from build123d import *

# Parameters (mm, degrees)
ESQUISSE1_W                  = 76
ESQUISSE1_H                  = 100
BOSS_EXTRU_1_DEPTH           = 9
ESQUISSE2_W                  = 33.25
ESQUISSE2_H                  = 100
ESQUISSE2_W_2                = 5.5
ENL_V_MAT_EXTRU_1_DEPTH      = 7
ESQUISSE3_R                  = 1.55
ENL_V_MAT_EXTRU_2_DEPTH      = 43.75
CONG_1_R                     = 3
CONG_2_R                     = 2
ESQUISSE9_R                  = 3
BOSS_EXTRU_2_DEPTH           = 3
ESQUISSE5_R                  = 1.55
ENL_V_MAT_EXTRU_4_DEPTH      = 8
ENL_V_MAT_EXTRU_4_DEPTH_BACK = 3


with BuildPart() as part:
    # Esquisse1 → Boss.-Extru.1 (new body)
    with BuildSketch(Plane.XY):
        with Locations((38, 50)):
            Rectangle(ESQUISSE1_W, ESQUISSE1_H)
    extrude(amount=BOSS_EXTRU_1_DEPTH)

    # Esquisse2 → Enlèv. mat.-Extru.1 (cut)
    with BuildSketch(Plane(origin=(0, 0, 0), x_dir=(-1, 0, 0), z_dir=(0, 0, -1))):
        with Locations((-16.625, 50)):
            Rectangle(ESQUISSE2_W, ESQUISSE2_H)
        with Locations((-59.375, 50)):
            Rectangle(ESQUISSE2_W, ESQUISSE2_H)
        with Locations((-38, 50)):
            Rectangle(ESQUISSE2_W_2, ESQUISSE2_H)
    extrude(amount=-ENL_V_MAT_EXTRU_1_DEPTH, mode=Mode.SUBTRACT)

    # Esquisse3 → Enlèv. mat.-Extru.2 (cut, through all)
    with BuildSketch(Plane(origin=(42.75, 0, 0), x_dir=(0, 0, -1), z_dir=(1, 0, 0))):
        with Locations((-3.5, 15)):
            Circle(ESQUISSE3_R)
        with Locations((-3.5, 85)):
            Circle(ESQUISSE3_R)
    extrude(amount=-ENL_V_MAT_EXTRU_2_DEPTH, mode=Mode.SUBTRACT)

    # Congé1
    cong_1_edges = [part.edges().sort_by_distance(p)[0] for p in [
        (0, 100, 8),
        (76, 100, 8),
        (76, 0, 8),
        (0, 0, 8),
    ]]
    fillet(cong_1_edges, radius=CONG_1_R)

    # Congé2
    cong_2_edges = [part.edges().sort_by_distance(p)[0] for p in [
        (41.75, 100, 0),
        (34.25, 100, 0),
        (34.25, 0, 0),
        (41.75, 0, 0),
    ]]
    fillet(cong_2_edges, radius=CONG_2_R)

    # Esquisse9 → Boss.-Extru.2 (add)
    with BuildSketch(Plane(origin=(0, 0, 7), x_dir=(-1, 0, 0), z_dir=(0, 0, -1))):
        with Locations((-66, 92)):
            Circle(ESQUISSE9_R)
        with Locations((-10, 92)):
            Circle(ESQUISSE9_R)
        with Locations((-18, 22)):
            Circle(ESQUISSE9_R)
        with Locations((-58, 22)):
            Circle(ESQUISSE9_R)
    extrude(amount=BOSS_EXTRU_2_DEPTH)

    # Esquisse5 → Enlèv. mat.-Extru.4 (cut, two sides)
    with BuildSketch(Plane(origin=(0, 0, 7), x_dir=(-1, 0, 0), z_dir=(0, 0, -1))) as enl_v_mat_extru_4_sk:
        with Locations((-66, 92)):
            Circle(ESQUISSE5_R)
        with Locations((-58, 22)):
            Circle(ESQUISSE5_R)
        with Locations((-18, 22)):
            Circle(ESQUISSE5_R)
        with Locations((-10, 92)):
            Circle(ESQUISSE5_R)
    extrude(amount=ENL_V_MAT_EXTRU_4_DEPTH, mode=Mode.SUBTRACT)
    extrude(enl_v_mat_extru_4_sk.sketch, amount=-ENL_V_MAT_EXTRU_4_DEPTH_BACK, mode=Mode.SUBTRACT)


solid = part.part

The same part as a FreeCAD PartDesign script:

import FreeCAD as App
import Part
import Sketcher

V = App.Vector


def edges_at(feature, points):
    """Names of the edges that pass closest to the given points."""
    edges = feature.Shape.Edges
    near = lambda p: min(range(len(edges)), key=lambda i: edges[i].distToShape(Part.Vertex(*p))[0])
    return sorted({f"Edge{near(p) + 1}" for p in points})

doc = App.newDocument("Part")
body = doc.addObject("PartDesign::Body", "Body")

sketch1 = body.newObject("Sketcher::SketchObject", "Sketch")
sketch1.AttachmentSupport = (doc.getObject("XY_Plane"), [""])
sketch1.MapMode = "FlatFace"
sketch1.addGeometry([
    Part.LineSegment(V(0, 100, 0), V(0, 0, 0)),
    Part.LineSegment(V(0, 0, 0), V(76, 0, 0)),
    Part.LineSegment(V(76, 0, 0), V(76, 100, 0)),
    Part.LineSegment(V(76, 100, 0), V(0, 100, 0)),
], False)
sketch1.addConstraint([
    Sketcher.Constraint("Coincident", 0, 2, 1, 1),
    Sketcher.Constraint("Coincident", 1, 2, 2, 1),
    Sketcher.Constraint("Coincident", 2, 2, 3, 1),
    Sketcher.Constraint("Coincident", 3, 2, 0, 1),
    Sketcher.Constraint("Vertical", 0),
    Sketcher.Constraint("Horizontal", 1),
    Sketcher.Constraint("Vertical", 2),
    Sketcher.Constraint("Horizontal", 3),
    Sketcher.Constraint("Coincident", 0, 2, -1, 1),
    Sketcher.Constraint("DistanceX", 1, 1, 1, 2, 76.0),
    Sketcher.Constraint("DistanceY", 0, 2, 0, 1, 100.0),
])
pad1 = body.newObject("PartDesign::Pad", "Pad")
pad1.Profile = sketch1
pad1.Length = 9

sketch2 = body.newObject("Sketcher::SketchObject", "Sketch001")
sketch2.AttachmentSupport = (doc.getObject("XY_Plane"), [""])
sketch2.MapMode = "FlatFace"
sketch2.addGeometry([
    Part.LineSegment(V(33, 100, 0), V(33, 0, 0)),
    Part.LineSegment(V(33, 0, 0), V(0, 0, 0)),
    Part.LineSegment(V(0, 0, 0), V(0, 100, 0)),
    Part.LineSegment(V(0, 100, 0), V(33, 100, 0)),
    Part.LineSegment(V(76, 100, 0), V(76, 0, 0)),
    Part.LineSegment(V(76, 0, 0), V(43, 0, 0)),
    Part.LineSegment(V(43, 0, 0), V(43, 100, 0)),
    Part.LineSegment(V(43, 100, 0), V(76, 100, 0)),
    Part.LineSegment(V(41, 100, 0), V(41, 0, 0)),
    Part.LineSegment(V(41, 0, 0), V(35, 0, 0)),
    Part.LineSegment(V(35, 0, 0), V(35, 100, 0)),
    Part.LineSegment(V(35, 100, 0), V(41, 100, 0)),
], False)
sketch2.addConstraint([
    Sketcher.Constraint("Coincident", 0, 2, 1, 1),
    Sketcher.Constraint("Coincident", 1, 2, 2, 1),
    Sketcher.Constraint("Coincident", 2, 2, 3, 1),
    Sketcher.Constraint("Coincident", 3, 2, 0, 1),
    Sketcher.Constraint("Coincident", 4, 2, 5, 1),
    Sketcher.Constraint("Coincident", 5, 2, 6, 1),
    Sketcher.Constraint("Coincident", 6, 2, 7, 1),
    Sketcher.Constraint("Coincident", 7, 2, 4, 1),
    Sketcher.Constraint("Coincident", 8, 2, 9, 1),
    Sketcher.Constraint("Coincident", 9, 2, 10, 1),
    Sketcher.Constraint("Coincident", 10, 2, 11, 1),
    Sketcher.Constraint("Coincident", 11, 2, 8, 1),
    Sketcher.Constraint("Vertical", 0),
    Sketcher.Constraint("Horizontal", 1),
    Sketcher.Constraint("Vertical", 2),
    Sketcher.Constraint("Horizontal", 3),
    Sketcher.Constraint("Vertical", 4),
    Sketcher.Constraint("Horizontal", 5),
    Sketcher.Constraint("Vertical", 6),
    Sketcher.Constraint("Horizontal", 7),
    Sketcher.Constraint("Vertical", 8),
    Sketcher.Constraint("Horizontal", 9),
    Sketcher.Constraint("Vertical", 10),
    Sketcher.Constraint("Horizontal", 11),
    Sketcher.Constraint("Coincident", 1, 2, -1, 1),
    Sketcher.Constraint("PointOnObject", 4, 2, -1),
    Sketcher.Constraint("PointOnObject", 8, 2, -1),
    Sketcher.Constraint("Horizontal", 3, 2, 6, 2),
    Sketcher.Constraint("Horizontal", 7, 2, 10, 2),
    Sketcher.Constraint("Equal", 3, 5),
    Sketcher.Constraint("DistanceY", 0, 2, 0, 1, 100.0),
    Sketcher.Constraint("DistanceX", 9, 2, 9, 1, 5.5),
    Sketcher.Constraint("DistanceX", -1, 1, 4, 2, 76.0),
    Sketcher.Constraint("DistanceX", 8, 2, 5, 2, 2.0),
    Sketcher.Constraint("DistanceX", 0, 2, 9, 2, 2.0),
])
pocket1 = body.newObject("PartDesign::Pocket", "Pocket")
pocket1.Profile = sketch2
pocket1.Length = 7
pocket1.Reversed = True

sketch3 = body.newObject("Sketcher::SketchObject", "Sketch002")
sketch3.AttachmentSupport = (doc.getObject("YZ_Plane"), [""])
sketch3.MapMode = "FlatFace"
sketch3.AttachmentOffset = App.Placement(V(0, 0, 42.75), App.Rotation())
sketch3.addGeometry([
    Part.Circle(V(15, 3.5, 0), V(0, 0, 1), 1.6),
    Part.Circle(V(85, 3.5, 0), V(0, 0, 1), 1.6),
], False)
sketch3.addConstraint([
    Sketcher.Constraint("Equal", 0, 1),
    Sketcher.Constraint("Horizontal", 0, 3, 1, 3),
    Sketcher.Constraint("Diameter", 0, 3.1),
    Sketcher.Constraint("DistanceX", -1, 1, 0, 3, 15.0),
    Sketcher.Constraint("DistanceX", -1, 1, 1, 3, 85.0),
    Sketcher.Constraint("DistanceY", -1, 1, 0, 3, 3.5),
])
pocket2 = body.newObject("PartDesign::Pocket", "Pocket001")
pocket2.Profile = sketch3
pocket2.Type = "ThroughAll"
doc.recompute()

fillet = body.newObject("PartDesign::Fillet", "Fillet")
fillet.Base = (pocket2, edges_at(pocket2, [
    (0, 100, 8),
    (76, 100, 8),
    (76, 0, 8),
    (0, 0, 8),
]))
fillet.Radius = 3
doc.recompute()

fillet2 = body.newObject("PartDesign::Fillet", "Fillet001")
fillet2.Base = (fillet, edges_at(fillet, [
    (41.75, 100, 0),
    (34.25, 100, 0),
    (34.25, 0, 0),
    (41.75, 0, 0),
]))
fillet2.Radius = 2

sketch4 = body.newObject("Sketcher::SketchObject", "Sketch003")
sketch4.AttachmentSupport = (doc.getObject("XY_Plane"), [""])
sketch4.MapMode = "FlatFace"
sketch4.AttachmentOffset = App.Placement(V(0, 0, 7), App.Rotation())
sketch4.addGeometry([
    Part.Circle(V(66, 92, 0), V(0, 0, 1), 3),
    Part.Circle(V(10, 92, 0), V(0, 0, 1), 3),
    Part.Circle(V(18, 22, 0), V(0, 0, 1), 3),
    Part.Circle(V(58, 22, 0), V(0, 0, 1), 3),
], False)
sketch4.addConstraint([
    Sketcher.Constraint("Equal", 0, 1),
    Sketcher.Constraint("Equal", 1, 2),
    Sketcher.Constraint("Equal", 2, 3),
    Sketcher.Constraint("Horizontal", 0, 3, 1, 3),
    Sketcher.Constraint("Horizontal", 2, 3, 3, 3),
    Sketcher.Constraint("Diameter", 0, 6.0),
    Sketcher.Constraint("DistanceX", -1, 1, 0, 3, 66.0),
    Sketcher.Constraint("DistanceY", -1, 1, 0, 3, 92.0),
    Sketcher.Constraint("DistanceX", -1, 1, 1, 3, 10.0),
    Sketcher.Constraint("DistanceX", -1, 1, 2, 3, 18.0),
    Sketcher.Constraint("DistanceY", -1, 1, 2, 3, 22.0),
    Sketcher.Constraint("DistanceX", -1, 1, 3, 3, 58.0),
])
pad2 = body.newObject("PartDesign::Pad", "Pad001")
pad2.Profile = sketch4
pad2.Length = 3
pad2.Reversed = True

sketch5 = body.newObject("Sketcher::SketchObject", "Sketch004")
sketch5.AttachmentSupport = (doc.getObject("XY_Plane"), [""])
sketch5.MapMode = "FlatFace"
sketch5.AttachmentOffset = App.Placement(V(0, 0, 7), App.Rotation())
sketch5.addGeometry([
    Part.Circle(V(66, 92, 0), V(0, 0, 1), 1.6),
    Part.Circle(V(58, 22, 0), V(0, 0, 1), 1.6),
    Part.Circle(V(18, 22, 0), V(0, 0, 1), 1.6),
    Part.Circle(V(10, 92, 0), V(0, 0, 1), 1.6),
], False)
sketch5.addConstraint([
    Sketcher.Constraint("Equal", 0, 1),
    Sketcher.Constraint("Equal", 1, 2),
    Sketcher.Constraint("Equal", 2, 3),
    Sketcher.Constraint("Horizontal", 1, 3, 2, 3),
    Sketcher.Constraint("Horizontal", 0, 3, 3, 3),
    Sketcher.Constraint("Diameter", 0, 3.1),
    Sketcher.Constraint("DistanceX", -1, 1, 0, 3, 66.0),
    Sketcher.Constraint("DistanceY", -1, 1, 0, 3, 92.0),
    Sketcher.Constraint("DistanceX", -1, 1, 1, 3, 58.0),
    Sketcher.Constraint("DistanceY", -1, 1, 1, 3, 22.0),
    Sketcher.Constraint("DistanceX", -1, 1, 2, 3, 18.0),
    Sketcher.Constraint("DistanceX", -1, 1, 3, 3, 10.0),
])
pocket3 = body.newObject("PartDesign::Pocket", "Pocket002")
pocket3.Profile = sketch5
pocket3.Type = "ThroughAll"
pocket3.Midplane = True

doc.recompute()
